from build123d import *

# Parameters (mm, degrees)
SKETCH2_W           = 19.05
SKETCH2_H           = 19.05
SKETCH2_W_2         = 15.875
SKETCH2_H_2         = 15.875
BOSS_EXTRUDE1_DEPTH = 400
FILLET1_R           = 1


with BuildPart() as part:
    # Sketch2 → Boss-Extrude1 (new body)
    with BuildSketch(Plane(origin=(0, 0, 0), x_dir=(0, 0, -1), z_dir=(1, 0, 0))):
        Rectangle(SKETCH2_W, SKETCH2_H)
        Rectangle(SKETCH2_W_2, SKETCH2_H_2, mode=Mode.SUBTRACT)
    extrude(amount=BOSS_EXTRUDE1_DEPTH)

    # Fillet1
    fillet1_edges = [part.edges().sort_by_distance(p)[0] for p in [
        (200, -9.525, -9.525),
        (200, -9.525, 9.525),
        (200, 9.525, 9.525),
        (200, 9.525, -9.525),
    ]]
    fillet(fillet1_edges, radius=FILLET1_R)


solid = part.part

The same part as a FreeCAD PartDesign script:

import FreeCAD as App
import Part
import Sketcher
from FreeCAD import Vector


def edges_at(feature, points):
    """Names of the edges that pass closest to the given points."""
    edges = feature.Shape.Edges
    near = lambda p: min(range(len(edges)), key=lambda i: edges[i].distToShape(Part.Vertex(*p))[0])
    return sorted({f"Edge{near(p) + 1}" for p in points})

doc = App.newDocument("Part")
body = doc.addObject("PartDesign::Body", "Body")

# Sketch on YZ plane
sketch1 = doc.addObject("Sketcher::SketchObject", "Sketch")
body.addObject(sketch1)
sketch1.AttachmentSupport = (doc.YZ_Plane, [""])
sketch1.MapMode = "FlatFace"
sketch1.addGeometry(Part.LineSegment(Vector(10, 10, 0), Vector(-10, 10, 0)), False)
sketch1.addGeometry(Part.LineSegment(Vector(-10, 10, 0), Vector(-10, -10, 0)), False)
sketch1.addGeometry(Part.LineSegment(Vector(-10, -10, 0), Vector(10, -10, 0)), False)
sketch1.addGeometry(Part.LineSegment(Vector(10, -10, 0), Vector(10, 10, 0)), False)
sketch1.addGeometry(Part.LineSegment(Vector(-8, -8, 0), Vector(-8, 8, 0)), False)
sketch1.addGeometry(Part.LineSegment(Vector(-8, 8, 0), Vector(8, 8, 0)), False)
sketch1.addGeometry(Part.LineSegment(Vector(8, 8, 0), Vector(8, -8, 0)), False)
sketch1.addGeometry(Part.LineSegment(Vector(8, -8, 0), Vector(-8, -8, 0)), False)
sketch1.addConstraint(Sketcher.Constraint("Coincident", 0, 2, 1, 1))
sketch1.addConstraint(Sketcher.Constraint("Coincident", 1, 2, 2, 1))
sketch1.addConstraint(Sketcher.Constraint("Coincident", 2, 2, 3, 1))
sketch1.addConstraint(Sketcher.Constraint("Coincident", 3, 2, 0, 1))
sketch1.addConstraint(Sketcher.Constraint("Coincident", 4, 2, 5, 1))
sketch1.addConstraint(Sketcher.Constraint("Coincident", 5, 2, 6, 1))
sketch1.addConstraint(Sketcher.Constraint("Coincident", 6, 2, 7, 1))
sketch1.addConstraint(Sketcher.Constraint("Coincident", 7, 2, 4, 1))
sketch1.addConstraint(Sketcher.Constraint("Horizontal", 0))
sketch1.addConstraint(Sketcher.Constraint("Vertical", 1))
sketch1.addConstraint(Sketcher.Constraint("Horizontal", 2))
sketch1.addConstraint(Sketcher.Constraint("Vertical", 3))
sketch1.addConstraint(Sketcher.Constraint("Vertical", 4))
sketch1.addConstraint(Sketcher.Constraint("Horizontal", 5))
sketch1.addConstraint(Sketcher.Constraint("Vertical", 6))
sketch1.addConstraint(Sketcher.Constraint("Horizontal", 7))
sketch1.addConstraint(Sketcher.Constraint("Symmetric", 0, 2, 2, 2, -1, 1))
sketch1.addConstraint(Sketcher.Constraint("Symmetric", 4, 2, 6, 2, -1, 1))
sketch1.addConstraint(Sketcher.Constraint("Equal", 2, 1))
sketch1.addConstraint(Sketcher.Constraint("Equal", 7, 4))
sketch1.addConstraint(Sketcher.Constraint("DistanceX", 0, 2, 0, 1, 19.05))
sketch1.addConstraint(Sketcher.Constraint("DistanceX", 5, 1, 5, 2, 15.875))
pad1 = doc.addObject("PartDesign::Pad", "Pad")
body.addObject(pad1)
pad1.Profile = sketch1
pad1.Length = 400
doc.recompute()

fillet = doc.addObject("PartDesign::Fillet", "Fillet")
body.addObject(fillet)
fillet.Base = (pad1, edges_at(pad1, [
    (200, -9.525, -9.525),
    (200, -9.525, 9.525),
    (200, 9.525, 9.525),
    (200, 9.525, -9.525),
]))
fillet.Radius = 1

doc.recompute()
